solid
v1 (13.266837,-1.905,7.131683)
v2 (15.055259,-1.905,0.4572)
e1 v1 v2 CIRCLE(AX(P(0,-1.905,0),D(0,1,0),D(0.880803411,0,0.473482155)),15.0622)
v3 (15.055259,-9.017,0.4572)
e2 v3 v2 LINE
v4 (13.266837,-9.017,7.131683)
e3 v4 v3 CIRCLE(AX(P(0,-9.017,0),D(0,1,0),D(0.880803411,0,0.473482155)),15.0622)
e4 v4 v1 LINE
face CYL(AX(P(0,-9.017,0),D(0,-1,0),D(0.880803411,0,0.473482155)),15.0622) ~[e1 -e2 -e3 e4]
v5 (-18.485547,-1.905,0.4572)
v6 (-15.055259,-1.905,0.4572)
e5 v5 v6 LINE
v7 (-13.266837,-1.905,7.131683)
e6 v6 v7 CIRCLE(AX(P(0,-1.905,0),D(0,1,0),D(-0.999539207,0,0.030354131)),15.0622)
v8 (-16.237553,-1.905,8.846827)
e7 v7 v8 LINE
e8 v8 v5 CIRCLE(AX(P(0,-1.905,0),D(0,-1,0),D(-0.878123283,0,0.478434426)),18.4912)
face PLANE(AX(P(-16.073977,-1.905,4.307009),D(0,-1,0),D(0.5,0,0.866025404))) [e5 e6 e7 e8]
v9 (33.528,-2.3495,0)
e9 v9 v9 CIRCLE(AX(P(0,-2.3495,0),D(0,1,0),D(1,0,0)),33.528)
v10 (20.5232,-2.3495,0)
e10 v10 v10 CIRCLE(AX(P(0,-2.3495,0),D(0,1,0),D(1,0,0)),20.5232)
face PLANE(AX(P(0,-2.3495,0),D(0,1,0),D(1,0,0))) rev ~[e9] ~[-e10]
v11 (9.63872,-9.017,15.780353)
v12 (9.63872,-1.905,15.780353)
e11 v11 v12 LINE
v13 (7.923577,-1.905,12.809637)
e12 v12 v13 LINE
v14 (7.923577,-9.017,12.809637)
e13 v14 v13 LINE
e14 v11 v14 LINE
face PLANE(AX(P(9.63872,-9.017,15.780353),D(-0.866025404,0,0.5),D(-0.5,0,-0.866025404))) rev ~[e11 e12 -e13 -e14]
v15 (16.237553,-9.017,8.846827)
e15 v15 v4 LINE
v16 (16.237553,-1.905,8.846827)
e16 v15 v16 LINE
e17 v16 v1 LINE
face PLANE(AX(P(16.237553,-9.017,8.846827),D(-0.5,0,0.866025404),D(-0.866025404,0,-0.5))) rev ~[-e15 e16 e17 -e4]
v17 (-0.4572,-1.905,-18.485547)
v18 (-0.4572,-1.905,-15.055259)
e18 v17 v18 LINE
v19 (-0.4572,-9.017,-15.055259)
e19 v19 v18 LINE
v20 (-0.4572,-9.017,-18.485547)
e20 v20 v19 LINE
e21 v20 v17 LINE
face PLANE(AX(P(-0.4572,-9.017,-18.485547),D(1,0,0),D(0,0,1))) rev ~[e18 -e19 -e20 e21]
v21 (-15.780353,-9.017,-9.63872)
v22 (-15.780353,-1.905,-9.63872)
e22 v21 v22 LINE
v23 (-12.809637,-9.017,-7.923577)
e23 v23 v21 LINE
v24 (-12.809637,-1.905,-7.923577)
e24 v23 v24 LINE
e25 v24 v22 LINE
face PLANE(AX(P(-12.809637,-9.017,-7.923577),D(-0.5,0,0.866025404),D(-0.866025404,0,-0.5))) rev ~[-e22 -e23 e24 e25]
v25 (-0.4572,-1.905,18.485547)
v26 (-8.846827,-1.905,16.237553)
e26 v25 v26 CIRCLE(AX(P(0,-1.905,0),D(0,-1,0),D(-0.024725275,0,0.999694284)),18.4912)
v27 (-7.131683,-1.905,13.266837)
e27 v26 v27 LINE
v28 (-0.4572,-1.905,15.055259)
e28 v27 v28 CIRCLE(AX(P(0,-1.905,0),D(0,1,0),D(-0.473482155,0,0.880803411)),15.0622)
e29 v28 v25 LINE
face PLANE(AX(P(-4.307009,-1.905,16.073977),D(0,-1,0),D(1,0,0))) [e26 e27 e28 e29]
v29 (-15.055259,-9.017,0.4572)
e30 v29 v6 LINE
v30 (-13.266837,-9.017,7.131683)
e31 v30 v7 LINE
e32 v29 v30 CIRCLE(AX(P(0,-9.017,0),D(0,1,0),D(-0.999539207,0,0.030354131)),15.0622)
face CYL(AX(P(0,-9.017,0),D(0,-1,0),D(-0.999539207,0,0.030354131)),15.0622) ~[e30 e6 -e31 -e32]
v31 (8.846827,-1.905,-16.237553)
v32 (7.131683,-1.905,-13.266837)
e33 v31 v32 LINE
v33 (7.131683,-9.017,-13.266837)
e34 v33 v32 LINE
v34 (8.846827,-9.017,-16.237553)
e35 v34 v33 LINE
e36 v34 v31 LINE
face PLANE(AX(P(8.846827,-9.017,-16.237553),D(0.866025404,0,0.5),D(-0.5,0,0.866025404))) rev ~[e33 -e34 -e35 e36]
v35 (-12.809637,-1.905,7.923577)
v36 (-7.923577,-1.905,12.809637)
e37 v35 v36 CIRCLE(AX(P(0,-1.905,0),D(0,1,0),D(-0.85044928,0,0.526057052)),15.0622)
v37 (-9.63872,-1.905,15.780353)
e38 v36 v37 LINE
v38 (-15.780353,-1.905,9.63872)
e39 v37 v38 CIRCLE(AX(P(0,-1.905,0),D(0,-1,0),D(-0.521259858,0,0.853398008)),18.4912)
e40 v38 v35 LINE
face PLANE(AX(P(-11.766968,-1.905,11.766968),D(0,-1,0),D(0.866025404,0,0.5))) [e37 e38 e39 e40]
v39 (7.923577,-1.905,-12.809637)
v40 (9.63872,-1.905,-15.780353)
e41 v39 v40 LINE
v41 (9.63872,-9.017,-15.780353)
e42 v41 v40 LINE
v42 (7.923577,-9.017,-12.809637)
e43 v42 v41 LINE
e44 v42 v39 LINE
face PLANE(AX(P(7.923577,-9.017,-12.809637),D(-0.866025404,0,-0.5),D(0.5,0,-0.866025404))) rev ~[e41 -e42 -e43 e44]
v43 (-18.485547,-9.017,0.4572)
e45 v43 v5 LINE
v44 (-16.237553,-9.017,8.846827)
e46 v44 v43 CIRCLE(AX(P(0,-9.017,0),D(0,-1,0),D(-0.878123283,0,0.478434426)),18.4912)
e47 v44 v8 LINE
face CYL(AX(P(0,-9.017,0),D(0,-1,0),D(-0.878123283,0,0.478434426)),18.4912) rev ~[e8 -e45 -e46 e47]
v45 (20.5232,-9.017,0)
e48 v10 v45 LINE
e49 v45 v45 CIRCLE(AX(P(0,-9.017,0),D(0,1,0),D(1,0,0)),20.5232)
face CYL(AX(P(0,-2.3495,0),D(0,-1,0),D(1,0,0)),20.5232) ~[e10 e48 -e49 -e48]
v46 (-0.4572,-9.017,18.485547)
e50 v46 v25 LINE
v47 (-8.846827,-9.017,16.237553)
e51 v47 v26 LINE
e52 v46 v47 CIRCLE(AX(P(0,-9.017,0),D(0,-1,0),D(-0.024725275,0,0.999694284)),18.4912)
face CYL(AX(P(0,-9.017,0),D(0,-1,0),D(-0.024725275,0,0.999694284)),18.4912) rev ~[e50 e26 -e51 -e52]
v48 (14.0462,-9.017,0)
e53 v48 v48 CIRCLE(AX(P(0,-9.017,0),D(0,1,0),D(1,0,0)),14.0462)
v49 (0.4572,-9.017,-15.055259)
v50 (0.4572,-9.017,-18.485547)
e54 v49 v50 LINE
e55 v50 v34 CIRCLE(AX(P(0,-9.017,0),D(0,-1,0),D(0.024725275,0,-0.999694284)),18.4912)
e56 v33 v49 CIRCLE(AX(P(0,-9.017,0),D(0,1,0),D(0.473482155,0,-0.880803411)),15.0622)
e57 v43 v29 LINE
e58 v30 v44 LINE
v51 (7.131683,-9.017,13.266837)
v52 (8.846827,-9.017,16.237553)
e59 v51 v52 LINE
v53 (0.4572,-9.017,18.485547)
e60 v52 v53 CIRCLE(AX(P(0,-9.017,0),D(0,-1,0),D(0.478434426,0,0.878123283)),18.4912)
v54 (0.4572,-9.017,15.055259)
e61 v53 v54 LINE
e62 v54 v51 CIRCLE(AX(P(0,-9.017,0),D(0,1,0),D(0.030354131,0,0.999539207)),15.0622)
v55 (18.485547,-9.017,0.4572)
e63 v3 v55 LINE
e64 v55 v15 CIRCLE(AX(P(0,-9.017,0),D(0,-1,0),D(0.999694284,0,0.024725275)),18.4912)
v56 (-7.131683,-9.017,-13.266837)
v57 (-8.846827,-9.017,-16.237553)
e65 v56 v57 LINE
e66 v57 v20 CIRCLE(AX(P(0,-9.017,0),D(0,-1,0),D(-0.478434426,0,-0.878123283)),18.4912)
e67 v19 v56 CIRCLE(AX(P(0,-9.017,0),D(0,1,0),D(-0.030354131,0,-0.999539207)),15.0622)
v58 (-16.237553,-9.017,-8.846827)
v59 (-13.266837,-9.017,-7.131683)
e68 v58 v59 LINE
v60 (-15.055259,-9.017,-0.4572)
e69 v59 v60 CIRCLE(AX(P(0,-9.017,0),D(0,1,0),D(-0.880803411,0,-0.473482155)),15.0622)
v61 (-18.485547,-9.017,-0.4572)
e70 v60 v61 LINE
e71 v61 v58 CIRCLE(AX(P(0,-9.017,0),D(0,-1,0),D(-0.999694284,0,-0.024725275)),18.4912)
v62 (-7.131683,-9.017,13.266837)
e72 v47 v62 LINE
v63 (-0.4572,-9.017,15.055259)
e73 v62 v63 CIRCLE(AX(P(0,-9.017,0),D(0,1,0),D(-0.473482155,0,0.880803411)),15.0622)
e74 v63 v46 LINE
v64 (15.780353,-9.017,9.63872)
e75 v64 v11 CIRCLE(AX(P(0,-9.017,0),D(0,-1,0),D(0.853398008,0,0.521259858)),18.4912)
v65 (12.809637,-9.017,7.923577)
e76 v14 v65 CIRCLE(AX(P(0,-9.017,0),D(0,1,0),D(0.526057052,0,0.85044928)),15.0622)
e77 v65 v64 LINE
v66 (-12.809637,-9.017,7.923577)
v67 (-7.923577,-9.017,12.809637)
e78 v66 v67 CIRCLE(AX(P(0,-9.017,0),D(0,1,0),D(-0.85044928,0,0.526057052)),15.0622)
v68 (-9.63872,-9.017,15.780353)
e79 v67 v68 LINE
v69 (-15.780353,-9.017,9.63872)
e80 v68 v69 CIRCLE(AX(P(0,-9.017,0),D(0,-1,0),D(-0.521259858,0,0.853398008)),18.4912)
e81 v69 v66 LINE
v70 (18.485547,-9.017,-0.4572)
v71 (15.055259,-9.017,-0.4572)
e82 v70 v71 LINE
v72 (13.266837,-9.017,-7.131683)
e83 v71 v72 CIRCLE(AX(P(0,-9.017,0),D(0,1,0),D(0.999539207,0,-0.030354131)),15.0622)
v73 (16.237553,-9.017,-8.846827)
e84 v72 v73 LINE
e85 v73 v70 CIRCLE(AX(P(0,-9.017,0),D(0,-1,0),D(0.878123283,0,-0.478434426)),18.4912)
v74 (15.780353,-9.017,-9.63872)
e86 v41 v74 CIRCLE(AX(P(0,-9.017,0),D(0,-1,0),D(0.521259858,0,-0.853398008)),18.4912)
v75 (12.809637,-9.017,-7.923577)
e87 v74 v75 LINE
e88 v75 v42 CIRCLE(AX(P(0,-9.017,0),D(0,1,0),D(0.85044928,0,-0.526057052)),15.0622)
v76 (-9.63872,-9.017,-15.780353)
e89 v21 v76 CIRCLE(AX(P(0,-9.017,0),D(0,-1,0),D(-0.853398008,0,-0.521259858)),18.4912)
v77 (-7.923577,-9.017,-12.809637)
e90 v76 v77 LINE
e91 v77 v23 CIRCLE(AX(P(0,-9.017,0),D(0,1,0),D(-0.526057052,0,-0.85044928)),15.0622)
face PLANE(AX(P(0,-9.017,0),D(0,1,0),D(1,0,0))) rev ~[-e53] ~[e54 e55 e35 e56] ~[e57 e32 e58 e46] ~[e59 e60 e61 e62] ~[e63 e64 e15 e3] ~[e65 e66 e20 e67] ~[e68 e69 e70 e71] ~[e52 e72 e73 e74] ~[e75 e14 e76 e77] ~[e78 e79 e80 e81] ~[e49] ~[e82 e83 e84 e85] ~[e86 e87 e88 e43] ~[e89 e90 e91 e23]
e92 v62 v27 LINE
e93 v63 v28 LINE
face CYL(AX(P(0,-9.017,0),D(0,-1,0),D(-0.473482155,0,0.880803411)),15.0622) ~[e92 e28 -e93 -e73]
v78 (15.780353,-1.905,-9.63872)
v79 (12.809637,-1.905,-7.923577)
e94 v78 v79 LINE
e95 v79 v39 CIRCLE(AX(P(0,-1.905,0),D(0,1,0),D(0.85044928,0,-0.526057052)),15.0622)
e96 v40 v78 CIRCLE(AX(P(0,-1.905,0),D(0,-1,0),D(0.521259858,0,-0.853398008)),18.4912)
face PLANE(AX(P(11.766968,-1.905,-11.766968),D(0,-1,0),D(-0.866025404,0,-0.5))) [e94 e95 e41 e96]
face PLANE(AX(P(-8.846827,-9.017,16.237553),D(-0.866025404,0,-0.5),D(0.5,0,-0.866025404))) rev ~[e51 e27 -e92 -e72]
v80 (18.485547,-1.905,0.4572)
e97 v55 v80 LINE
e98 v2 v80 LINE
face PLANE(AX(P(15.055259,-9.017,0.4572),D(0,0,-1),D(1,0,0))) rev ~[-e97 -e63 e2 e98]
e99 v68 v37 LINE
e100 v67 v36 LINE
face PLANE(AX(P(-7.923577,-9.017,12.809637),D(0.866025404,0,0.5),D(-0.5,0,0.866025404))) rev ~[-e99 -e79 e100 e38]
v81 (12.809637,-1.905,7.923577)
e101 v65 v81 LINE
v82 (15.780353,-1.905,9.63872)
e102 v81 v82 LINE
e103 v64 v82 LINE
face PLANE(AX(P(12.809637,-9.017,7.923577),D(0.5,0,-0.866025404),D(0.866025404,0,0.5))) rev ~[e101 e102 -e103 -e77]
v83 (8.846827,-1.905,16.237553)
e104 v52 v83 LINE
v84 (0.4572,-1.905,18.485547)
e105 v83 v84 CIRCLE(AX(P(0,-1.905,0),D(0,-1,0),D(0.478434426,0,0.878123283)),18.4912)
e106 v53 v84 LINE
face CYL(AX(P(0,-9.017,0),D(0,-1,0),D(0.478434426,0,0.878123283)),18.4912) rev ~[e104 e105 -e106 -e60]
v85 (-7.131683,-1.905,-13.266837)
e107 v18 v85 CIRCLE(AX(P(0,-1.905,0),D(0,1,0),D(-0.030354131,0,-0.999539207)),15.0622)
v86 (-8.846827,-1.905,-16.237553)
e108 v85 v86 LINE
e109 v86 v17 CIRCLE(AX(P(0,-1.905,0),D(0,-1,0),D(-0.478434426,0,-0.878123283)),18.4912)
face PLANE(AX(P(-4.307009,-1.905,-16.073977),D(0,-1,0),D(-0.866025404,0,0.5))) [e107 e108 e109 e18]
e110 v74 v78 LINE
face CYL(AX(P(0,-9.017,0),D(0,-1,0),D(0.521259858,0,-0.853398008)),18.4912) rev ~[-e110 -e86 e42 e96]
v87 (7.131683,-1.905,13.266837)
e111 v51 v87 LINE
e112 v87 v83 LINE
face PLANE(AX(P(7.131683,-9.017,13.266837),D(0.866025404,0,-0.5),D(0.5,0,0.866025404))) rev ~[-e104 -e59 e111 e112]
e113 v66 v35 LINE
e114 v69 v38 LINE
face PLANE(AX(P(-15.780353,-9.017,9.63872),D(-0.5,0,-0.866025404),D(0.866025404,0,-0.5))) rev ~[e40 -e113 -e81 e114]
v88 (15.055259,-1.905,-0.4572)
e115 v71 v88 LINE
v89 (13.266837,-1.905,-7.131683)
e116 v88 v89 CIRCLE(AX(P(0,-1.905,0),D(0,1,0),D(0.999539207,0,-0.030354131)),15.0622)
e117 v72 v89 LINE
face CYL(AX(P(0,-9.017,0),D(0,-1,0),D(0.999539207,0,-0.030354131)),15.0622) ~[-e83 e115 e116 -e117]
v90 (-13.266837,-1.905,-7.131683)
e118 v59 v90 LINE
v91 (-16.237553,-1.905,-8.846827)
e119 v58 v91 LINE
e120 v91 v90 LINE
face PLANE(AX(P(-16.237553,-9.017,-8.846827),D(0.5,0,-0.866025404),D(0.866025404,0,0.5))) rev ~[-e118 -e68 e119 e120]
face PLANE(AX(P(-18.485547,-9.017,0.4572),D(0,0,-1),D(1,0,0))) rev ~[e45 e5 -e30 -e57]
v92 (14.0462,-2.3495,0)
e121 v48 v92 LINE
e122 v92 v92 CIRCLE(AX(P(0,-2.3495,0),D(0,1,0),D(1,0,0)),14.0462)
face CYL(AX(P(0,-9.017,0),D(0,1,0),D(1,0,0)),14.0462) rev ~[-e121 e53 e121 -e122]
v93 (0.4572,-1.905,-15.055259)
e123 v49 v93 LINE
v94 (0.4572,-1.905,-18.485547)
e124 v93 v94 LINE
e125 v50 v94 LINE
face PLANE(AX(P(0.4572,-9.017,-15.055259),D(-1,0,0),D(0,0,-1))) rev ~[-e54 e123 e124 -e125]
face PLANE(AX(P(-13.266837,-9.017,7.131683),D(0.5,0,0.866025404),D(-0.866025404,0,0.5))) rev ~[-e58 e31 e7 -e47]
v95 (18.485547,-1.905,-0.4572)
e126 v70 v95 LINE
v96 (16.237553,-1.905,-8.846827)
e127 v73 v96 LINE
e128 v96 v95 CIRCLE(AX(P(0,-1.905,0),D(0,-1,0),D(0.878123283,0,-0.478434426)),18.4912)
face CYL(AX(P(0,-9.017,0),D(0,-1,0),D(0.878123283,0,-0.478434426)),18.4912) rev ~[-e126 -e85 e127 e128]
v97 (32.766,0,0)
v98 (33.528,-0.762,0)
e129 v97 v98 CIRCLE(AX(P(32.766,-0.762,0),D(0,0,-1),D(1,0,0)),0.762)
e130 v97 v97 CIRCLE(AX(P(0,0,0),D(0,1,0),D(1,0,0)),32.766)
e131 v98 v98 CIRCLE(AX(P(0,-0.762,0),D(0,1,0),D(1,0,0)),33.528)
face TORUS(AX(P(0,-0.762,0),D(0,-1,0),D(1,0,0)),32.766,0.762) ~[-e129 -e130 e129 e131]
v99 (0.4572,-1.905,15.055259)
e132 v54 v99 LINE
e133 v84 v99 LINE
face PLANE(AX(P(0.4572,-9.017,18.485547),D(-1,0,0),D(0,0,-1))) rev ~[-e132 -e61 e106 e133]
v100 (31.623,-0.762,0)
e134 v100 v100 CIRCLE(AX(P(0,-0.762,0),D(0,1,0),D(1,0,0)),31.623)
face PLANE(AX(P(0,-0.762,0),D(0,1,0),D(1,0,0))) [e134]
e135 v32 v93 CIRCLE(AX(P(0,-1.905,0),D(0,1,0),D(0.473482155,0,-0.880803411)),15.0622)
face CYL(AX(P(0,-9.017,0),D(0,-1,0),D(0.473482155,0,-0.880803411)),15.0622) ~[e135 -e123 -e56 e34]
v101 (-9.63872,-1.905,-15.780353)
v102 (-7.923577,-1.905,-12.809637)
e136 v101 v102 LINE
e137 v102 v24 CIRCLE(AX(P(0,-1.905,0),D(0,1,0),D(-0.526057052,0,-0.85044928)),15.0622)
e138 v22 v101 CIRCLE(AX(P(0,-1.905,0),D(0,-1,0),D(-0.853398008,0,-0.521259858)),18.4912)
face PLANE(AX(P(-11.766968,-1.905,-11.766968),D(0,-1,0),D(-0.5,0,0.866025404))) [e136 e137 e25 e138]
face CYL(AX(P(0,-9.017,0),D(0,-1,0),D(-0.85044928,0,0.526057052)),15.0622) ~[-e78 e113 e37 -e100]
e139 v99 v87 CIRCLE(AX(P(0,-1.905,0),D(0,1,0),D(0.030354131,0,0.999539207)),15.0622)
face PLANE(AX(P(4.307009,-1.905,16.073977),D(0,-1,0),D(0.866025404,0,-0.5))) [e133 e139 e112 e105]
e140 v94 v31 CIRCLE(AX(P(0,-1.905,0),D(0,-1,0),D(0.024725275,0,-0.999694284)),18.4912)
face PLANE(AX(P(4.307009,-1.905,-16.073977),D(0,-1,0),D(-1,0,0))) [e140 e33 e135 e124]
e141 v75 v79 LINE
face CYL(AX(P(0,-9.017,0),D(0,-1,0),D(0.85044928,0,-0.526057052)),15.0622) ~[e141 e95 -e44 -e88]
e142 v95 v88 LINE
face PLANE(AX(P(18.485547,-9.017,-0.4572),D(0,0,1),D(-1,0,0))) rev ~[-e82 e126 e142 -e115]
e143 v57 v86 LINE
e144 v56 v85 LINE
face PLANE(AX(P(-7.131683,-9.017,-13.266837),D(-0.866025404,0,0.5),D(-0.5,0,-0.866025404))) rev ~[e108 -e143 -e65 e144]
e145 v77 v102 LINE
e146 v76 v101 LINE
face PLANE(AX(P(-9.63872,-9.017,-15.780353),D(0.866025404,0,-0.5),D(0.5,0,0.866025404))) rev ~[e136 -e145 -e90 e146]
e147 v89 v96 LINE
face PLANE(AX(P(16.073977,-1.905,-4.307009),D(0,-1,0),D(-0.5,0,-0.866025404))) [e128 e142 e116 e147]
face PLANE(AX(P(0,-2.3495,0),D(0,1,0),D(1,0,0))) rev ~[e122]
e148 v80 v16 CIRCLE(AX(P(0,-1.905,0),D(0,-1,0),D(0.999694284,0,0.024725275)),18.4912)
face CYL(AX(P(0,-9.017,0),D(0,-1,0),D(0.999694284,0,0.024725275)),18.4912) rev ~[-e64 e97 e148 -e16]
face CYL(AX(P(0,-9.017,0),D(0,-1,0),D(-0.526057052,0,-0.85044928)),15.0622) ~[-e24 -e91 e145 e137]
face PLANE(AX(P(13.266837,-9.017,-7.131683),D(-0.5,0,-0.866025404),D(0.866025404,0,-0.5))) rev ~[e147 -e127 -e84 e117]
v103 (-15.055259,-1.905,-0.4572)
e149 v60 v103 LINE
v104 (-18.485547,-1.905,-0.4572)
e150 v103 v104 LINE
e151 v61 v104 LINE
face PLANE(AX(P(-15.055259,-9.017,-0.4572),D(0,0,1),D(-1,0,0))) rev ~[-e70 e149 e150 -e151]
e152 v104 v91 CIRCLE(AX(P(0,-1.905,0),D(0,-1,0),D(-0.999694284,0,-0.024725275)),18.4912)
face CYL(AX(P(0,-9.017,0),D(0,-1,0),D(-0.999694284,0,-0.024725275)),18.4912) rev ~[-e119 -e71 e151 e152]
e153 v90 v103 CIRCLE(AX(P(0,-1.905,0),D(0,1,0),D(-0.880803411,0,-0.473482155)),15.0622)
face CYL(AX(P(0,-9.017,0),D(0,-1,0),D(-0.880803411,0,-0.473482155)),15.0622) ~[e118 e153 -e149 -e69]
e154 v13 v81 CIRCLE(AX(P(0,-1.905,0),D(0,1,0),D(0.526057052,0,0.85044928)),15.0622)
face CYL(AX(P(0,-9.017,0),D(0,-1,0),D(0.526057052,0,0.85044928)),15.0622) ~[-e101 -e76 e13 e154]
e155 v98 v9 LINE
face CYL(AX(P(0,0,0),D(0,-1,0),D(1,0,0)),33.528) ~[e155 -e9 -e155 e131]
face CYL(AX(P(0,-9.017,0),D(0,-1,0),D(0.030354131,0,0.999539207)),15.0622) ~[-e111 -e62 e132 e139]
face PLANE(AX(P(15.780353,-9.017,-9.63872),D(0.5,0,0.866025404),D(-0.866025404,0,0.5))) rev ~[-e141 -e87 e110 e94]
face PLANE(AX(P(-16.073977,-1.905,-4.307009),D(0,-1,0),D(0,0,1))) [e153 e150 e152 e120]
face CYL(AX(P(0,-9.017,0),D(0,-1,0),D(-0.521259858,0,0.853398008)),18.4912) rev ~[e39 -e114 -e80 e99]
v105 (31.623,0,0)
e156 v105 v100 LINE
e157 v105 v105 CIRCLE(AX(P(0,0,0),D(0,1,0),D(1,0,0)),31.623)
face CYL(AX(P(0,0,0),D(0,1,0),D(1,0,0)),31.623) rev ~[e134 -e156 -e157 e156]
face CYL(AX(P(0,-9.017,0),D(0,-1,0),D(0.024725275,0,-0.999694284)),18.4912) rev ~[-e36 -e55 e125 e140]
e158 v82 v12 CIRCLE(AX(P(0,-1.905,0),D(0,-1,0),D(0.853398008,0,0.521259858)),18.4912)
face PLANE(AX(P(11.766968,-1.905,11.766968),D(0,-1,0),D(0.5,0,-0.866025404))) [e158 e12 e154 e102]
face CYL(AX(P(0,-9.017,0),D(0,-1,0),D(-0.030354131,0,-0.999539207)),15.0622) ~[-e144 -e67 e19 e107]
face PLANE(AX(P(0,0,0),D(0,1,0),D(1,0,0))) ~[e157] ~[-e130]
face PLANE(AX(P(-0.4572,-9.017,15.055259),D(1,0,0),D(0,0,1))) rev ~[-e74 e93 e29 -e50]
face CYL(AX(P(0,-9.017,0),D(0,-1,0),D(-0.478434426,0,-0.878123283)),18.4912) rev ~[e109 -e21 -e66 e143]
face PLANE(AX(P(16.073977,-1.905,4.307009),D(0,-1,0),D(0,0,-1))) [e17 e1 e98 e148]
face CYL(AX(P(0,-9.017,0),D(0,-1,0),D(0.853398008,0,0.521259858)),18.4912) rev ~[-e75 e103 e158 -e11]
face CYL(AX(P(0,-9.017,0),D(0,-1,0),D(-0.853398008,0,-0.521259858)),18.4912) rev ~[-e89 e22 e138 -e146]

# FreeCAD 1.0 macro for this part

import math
import FreeCAD as App
import Part
import Sketcher
Q = App.Units.Quantity


def edges_at(feature, points):
    """Names of the edges that pass closest to the given points."""
    edges = feature.Shape.Edges
    near = lambda p: min(range(len(edges)), key=lambda i: edges[i].distToShape(Part.Vertex(*p))[0])
    return sorted({f"Edge{near(p) + 1}" for p in points})

doc = App.newDocument("Part")
body = doc.addObject("PartDesign::Body", "Body")

sketch1 = doc.addObject("Sketcher::SketchObject", "Sketch")
body.addObject(sketch1)
sketch1.AttachmentSupport = (doc.XY_Plane, [""])
sketch1.MapMode = "FlatFace"
sketch1.addGeometry([
    Part.LineSegment(App.Vector(33.5, 0, 0), App.Vector(0, 0, 0)),
    Part.LineSegment(App.Vector(0, 0, 0), App.Vector(0, -2.3, 0)),
    Part.LineSegment(App.Vector(0, -2.3, 0), App.Vector(14, -2.3, 0)),
    Part.LineSegment(App.Vector(14, -2.3, 0), App.Vector(14, -9, 0)),
    Part.LineSegment(App.Vector(14, -9, 0), App.Vector(20.5, -9, 0)),
    Part.LineSegment(App.Vector(20.5, -9, 0), App.Vector(20.5, -2.3, 0)),
    Part.LineSegment(App.Vector(20.5, -2.3, 0), App.Vector(33.5, -2.3, 0)),
    Part.LineSegment(App.Vector(33.5, -2.3, 0), App.Vector(33.5, 0, 0)),
], False)
sketch1.addConstraint([
    Sketcher.Constraint("Coincident", 0, 2, 1, 1),
    Sketcher.Constraint("Coincident", 1, 2, 2, 1),
    Sketcher.Constraint("Coincident", 2, 2, 3, 1),
    Sketcher.Constraint("Coincident", 3, 2, 4, 1),
    Sketcher.Constraint("Coincident", 4, 2, 5, 1),
    Sketcher.Constraint("Coincident", 5, 2, 6, 1),
    Sketcher.Constraint("Coincident", 6, 2, 7, 1),
    Sketcher.Constraint("Coincident", 7, 2, 0, 1),
    Sketcher.Constraint("Horizontal", 0),
    Sketcher.Constraint("Vertical", 1),
    Sketcher.Constraint("Horizontal", 2),
    Sketcher.Constraint("Vertical", 3),
    Sketcher.Constraint("Horizontal", 4),
    Sketcher.Constraint("Vertical", 5),
    Sketcher.Constraint("Horizontal", 6),
    Sketcher.Constraint("Vertical", 7),
    Sketcher.Constraint("Coincident", 0, 2, -1, 1),
    Sketcher.Constraint("Horizontal", 2, 2, 5, 2),
    Sketcher.Constraint("DistanceX", 0, 2, 0, 1, Q("1.32 in")),
    Sketcher.Constraint("DistanceX", 2, 1, 2, 2, Q("0.553 in")),
    Sketcher.Constraint("DistanceX", 4, 1, 4, 2, Q("0.255 in")),
    Sketcher.Constraint("DistanceY", 1, 2, 1, 1, Q("0.0925 in")),
    Sketcher.Constraint("DistanceY", 3, 2, 3, 1, Q("0.2625 in")),
])
revolution = doc.addObject("PartDesign::Revolution", "Revolution")
body.addObject(revolution)
revolution.Profile = sketch1
revolution.ReferenceAxis = (sketch1, ["V_Axis"])
revolution.Angle = 360
doc.recompute()

fillet = doc.addObject("PartDesign::Fillet", "Fillet")
body.addObject(fillet)
fillet.Base = (revolution, edges_at(revolution, [(-33.528, 0, 0)]))
fillet.Radius = Q("0.03 in")

sketch2 = doc.addObject("Sketcher::SketchObject", "Sketch001")
body.addObject(sketch2)
sketch2.AttachmentSupport = (doc.XZ_Plane, [""])
sketch2.MapMode = "FlatFace"
sketch2.addGeometry(Part.Circle(App.Vector(0, 0, 0), App.Vector(0, 0, 1), 32), False)
sketch2.addConstraint([
    Sketcher.Constraint("Coincident", 0, 3, -1, 1),
    Sketcher.Constraint("Diameter", 0, Q("2.49 in")),
])
pocket1 = doc.addObject("PartDesign::Pocket", "Pocket")
body.addObject(pocket1)
pocket1.Profile = sketch2
pocket1.Length = Q("0.03 in")
pocket1.Reversed = True

sketch3 = doc.addObject("Sketcher::SketchObject", "Sketch002")
body.addObject(sketch3)
sketch3.AttachmentSupport = (doc.XZ_Plane, [""])
sketch3.MapMode = "FlatFace"
sketch3.AttachmentOffset = App.Placement(App.Vector(0, 0, 0.355 * 25.4), App.Rotation())
sketch3.addGeometry([
    Part.LineSegment(App.Vector(-8.8, 16.2, 0), App.Vector(-7.1, 13.3, 0)),
    Part.ArcOfCircle(Part.Circle(App.Vector(0, 0, 0), App.Vector(0, 0, 1), 15.1), math.radians(92), math.radians(118)),
    Part.LineSegment(App.Vector(-0.5, 15.1, 0), App.Vector(-0.5, 18.5, 0)),
    Part.ArcOfCircle(Part.Circle(App.Vector(0, 0, 0), App.Vector(0, 0, 1), 18.5), math.radians(91), math.radians(119)),
], False)
sketch3.addConstraint([
    Sketcher.Constraint("Coincident", 0, 2, 1, 2),
    Sketcher.Constraint("Coincident", 1, 1, 2, 1),
    Sketcher.Constraint("Coincident", 2, 2, 3, 1),
    Sketcher.Constraint("Coincident", 3, 2, 0, 1),
    Sketcher.Constraint("Vertical", 2),
    Sketcher.Constraint("Coincident", 1, 3, -1, 1),
    Sketcher.Constraint("Coincident", 3, 3, -1, 1),
    Sketcher.Constraint("Angle", 0, Q("-60 deg")),
    Sketcher.Constraint("Radius", 1, Q("0.593 in")),
    Sketcher.Constraint("Radius", 3, Q("0.728 in")),
    Sketcher.Constraint("DistanceX", 1, 1, -1, 1, Q("0.018 in")),
    Sketcher.Constraint("DistanceY", 0, 2, 2, 2, 5.21871),
])
pocket2 = doc.addObject("PartDesign::Pocket", "Pocket001")
body.addObject(pocket2)
pocket2.Profile = sketch3
pocket2.Length = Q("0.28 in")
doc.recompute()

polarpattern = doc.addObject("PartDesign::PolarPattern", "PolarPattern")
body.addObject(polarpattern)
polarpattern.Originals = [pocket2]
polarpattern.Axis = (doc.Y_Axis, [""])
polarpattern.Angle = 360
polarpattern.Occurrences = 12
body.Tip = polarpattern

doc.recompute()
